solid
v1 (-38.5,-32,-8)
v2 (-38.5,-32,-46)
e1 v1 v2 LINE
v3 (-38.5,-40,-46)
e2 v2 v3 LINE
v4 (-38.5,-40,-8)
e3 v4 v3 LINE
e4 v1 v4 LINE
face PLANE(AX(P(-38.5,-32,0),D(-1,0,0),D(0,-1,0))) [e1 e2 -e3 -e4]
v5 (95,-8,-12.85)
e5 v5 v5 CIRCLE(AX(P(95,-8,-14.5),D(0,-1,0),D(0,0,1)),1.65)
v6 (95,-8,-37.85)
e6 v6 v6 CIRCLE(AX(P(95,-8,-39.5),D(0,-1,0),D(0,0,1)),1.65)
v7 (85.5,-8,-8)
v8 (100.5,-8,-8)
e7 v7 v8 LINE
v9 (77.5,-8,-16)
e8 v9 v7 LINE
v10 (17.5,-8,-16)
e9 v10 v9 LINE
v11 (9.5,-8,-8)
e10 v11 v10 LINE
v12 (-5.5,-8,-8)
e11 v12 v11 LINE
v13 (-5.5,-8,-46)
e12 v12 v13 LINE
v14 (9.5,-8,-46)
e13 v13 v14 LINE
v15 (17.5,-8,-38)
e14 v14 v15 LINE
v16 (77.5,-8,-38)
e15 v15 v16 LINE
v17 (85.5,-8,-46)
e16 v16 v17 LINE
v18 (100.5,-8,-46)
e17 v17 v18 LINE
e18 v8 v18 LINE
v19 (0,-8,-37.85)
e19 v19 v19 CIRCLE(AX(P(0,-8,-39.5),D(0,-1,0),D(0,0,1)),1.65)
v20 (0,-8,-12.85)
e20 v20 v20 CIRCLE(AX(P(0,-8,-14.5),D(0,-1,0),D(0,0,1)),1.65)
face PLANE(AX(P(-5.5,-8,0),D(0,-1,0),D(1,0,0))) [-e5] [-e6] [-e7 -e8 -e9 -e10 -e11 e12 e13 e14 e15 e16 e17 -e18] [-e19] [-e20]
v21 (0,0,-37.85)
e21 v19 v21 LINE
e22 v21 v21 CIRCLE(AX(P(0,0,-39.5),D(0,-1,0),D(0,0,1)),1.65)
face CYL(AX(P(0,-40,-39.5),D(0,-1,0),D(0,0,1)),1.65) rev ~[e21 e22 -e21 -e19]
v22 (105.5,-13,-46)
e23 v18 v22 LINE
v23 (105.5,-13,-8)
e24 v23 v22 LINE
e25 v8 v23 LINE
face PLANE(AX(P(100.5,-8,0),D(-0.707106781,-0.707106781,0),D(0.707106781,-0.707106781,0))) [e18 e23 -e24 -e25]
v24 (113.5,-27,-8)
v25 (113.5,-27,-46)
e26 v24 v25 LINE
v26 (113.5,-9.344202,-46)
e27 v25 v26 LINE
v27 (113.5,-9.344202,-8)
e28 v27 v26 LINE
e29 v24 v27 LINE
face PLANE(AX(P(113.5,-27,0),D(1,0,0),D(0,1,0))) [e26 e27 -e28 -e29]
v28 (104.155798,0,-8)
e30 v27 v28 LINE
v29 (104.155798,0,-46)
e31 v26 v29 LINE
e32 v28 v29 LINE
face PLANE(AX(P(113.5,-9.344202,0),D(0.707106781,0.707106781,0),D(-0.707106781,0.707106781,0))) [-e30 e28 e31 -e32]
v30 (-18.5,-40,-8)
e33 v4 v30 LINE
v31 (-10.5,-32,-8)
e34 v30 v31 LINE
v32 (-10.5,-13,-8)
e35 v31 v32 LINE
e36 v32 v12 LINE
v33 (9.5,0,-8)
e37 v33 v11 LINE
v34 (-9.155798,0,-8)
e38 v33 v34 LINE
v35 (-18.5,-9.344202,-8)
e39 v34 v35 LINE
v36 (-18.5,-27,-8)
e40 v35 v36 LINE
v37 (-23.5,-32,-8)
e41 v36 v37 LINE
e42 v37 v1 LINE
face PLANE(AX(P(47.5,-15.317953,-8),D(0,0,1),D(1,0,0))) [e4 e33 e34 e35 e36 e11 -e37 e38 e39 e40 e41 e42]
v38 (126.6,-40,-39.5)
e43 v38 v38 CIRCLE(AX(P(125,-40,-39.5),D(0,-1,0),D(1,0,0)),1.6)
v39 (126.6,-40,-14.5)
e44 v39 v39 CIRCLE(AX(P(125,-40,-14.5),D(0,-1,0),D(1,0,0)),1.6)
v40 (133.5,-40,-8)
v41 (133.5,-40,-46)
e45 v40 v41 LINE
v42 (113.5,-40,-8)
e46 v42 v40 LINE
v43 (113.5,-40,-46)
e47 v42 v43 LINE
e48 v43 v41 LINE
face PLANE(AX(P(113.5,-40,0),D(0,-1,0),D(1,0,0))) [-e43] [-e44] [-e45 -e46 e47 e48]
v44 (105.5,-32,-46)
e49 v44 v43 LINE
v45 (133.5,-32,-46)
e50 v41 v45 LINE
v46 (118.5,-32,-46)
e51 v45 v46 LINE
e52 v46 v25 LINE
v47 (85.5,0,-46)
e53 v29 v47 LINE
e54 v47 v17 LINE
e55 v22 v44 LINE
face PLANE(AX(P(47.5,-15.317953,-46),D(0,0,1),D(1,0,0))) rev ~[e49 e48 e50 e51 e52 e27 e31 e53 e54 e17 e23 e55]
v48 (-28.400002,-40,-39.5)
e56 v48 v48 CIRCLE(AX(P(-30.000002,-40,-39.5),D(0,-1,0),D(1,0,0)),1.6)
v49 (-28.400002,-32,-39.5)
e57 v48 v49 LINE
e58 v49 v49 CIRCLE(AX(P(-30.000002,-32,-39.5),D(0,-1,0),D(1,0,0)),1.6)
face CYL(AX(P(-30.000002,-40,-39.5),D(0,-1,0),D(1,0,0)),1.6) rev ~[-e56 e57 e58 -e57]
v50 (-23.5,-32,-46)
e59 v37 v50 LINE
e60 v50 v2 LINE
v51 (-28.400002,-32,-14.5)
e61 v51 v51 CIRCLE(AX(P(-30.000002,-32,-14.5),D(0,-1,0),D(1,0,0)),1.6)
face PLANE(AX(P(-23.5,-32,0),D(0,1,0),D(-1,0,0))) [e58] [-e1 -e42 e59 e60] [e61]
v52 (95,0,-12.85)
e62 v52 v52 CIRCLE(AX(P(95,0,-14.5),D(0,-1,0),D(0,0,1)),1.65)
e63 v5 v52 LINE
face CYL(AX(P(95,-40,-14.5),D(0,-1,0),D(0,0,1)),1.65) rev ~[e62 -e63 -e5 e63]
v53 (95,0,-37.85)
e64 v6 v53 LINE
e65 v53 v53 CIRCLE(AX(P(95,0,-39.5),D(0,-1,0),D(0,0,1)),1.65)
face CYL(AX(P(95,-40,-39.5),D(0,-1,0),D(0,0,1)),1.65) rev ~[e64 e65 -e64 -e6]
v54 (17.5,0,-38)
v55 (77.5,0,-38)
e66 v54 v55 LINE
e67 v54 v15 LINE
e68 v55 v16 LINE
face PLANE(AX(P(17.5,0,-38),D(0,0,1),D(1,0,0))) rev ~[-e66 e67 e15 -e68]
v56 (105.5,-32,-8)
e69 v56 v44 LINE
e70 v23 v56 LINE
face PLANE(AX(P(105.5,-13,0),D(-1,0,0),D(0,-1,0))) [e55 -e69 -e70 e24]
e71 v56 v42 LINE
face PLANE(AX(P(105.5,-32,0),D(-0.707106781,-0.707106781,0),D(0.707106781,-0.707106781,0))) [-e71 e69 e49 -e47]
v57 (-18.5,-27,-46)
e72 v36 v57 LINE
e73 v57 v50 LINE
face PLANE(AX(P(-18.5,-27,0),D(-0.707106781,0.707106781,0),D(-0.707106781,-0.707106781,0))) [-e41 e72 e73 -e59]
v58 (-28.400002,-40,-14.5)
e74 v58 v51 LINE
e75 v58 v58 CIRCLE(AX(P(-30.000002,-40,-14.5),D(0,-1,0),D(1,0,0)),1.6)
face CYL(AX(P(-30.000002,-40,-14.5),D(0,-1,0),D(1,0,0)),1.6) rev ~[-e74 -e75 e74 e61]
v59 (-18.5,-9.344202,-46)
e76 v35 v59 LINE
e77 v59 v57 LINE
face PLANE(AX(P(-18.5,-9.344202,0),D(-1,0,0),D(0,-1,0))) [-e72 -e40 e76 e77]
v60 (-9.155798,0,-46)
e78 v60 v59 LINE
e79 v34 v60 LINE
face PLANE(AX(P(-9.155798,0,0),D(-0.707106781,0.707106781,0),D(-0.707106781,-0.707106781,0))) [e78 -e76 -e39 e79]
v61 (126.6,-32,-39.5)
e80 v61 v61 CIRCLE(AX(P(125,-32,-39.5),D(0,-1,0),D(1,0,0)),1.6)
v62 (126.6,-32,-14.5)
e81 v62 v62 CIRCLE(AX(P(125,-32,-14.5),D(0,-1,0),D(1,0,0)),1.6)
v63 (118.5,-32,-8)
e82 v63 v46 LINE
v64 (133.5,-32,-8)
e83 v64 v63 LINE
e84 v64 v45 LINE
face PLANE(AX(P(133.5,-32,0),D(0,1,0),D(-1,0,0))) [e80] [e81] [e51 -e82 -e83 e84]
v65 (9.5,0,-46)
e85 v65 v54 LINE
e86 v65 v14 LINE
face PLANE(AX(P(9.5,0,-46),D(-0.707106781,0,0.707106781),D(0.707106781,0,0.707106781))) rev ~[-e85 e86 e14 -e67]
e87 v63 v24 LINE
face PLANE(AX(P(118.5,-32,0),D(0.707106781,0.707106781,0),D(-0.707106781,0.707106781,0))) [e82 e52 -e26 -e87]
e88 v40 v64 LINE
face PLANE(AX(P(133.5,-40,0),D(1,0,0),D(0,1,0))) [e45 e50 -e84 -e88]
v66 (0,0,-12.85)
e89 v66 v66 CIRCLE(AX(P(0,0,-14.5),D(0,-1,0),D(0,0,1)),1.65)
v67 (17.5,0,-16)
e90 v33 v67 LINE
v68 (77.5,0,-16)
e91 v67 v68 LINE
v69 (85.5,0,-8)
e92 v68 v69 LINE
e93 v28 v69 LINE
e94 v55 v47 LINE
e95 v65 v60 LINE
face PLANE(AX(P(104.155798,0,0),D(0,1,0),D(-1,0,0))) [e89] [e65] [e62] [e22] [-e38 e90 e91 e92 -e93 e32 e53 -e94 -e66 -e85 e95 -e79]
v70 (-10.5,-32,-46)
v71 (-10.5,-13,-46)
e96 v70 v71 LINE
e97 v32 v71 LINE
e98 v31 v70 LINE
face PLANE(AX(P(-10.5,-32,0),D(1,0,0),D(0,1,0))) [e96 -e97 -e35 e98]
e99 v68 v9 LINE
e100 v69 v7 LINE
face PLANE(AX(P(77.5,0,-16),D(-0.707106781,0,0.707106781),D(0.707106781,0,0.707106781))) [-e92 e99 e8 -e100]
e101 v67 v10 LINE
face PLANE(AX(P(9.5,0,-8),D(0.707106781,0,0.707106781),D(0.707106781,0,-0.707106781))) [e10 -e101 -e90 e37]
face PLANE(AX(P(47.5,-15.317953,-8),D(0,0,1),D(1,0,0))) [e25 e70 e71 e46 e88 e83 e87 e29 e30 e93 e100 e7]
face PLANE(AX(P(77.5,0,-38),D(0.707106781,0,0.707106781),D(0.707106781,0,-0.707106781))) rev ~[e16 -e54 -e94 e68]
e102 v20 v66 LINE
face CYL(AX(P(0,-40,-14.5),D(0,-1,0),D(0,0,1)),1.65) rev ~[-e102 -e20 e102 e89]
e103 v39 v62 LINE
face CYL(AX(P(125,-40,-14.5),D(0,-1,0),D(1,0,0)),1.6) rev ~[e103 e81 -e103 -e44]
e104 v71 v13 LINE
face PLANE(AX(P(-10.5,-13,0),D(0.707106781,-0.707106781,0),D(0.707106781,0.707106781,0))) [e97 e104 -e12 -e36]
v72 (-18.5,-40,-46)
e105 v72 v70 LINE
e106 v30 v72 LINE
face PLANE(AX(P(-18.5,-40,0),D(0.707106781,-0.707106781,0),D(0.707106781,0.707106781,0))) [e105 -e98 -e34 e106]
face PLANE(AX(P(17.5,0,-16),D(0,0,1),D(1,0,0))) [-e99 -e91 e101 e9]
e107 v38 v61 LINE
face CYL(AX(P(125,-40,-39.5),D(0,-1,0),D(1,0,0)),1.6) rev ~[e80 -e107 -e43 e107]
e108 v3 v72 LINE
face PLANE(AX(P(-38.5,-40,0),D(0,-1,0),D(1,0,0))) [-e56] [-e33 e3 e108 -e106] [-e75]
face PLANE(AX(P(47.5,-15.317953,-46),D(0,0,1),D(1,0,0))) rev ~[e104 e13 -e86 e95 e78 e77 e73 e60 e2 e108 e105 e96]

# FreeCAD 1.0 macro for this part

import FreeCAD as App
import Part
import Sketcher
Q = App.Units.Quantity


def add_polygon(sketch, points):
    """Adds a closed chain of lines whose ends are joined by coincident constraints."""
    first, n = sketch.GeometryCount, len(points)
    for a, b in zip(points, points[1:] + points[:1]):
        sketch.addGeometry(Part.LineSegment(App.Vector(*a, 0), App.Vector(*b, 0)), False)
    for i in range(n):
        sketch.addConstraint(Sketcher.Constraint("Coincident", first + i, 2, first + (i + 1) % n, 1))

doc = App.newDocument("Part")
body = doc.addObject("PartDesign::Body", "Body")

sketch1 = doc.addObject("Sketcher::SketchObject", "Sketch")
body.addObject(sketch1)
sketch1.AttachmentSupport = (doc.XY_Plane, [""])
sketch1.MapMode = "FlatFace"
add_polygon(sketch1, [(-38.5, -40), (-18.5, -40), (-10.5, -32), (-10.5, -13), (-5.5, -8), (100.5, -8), (105.5, -13), (105.5, -32), (113.5, -40), (133.5, -40), (133.5, -32), (118.5, -32), (113.5, -27), (113.5, -9.344202), (104.155798, 0), (-9.155798, 0), (-18.5, -9.344202), (-18.5, -27), (-23.5, -32), (-38.5, -32)])
sketch1.addConstraint([
    Sketcher.Constraint("Horizontal", 0),
    Sketcher.Constraint("Vertical", 2),
    Sketcher.Constraint("Horizontal", 4),
    Sketcher.Constraint("Vertical", 6),
    Sketcher.Constraint("Horizontal", 8),
    Sketcher.Constraint("Vertical", 9),
    Sketcher.Constraint("Horizontal", 10),
    Sketcher.Constraint("Vertical", 12),
    Sketcher.Constraint("Horizontal", 14),
    Sketcher.Constraint("Vertical", 16),
    Sketcher.Constraint("Horizontal", 18),
    Sketcher.Constraint("Vertical", 19),
    Sketcher.Constraint("PointOnObject", 13, 2, -1),
    Sketcher.Constraint("Parallel", 1, 3),
    Sketcher.Constraint("Perpendicular", 3, 5),
    Sketcher.Constraint("Parallel", 5, 7),
    Sketcher.Constraint("Parallel", 7, 11),
    Sketcher.Constraint("Parallel", 11, 13),
    Sketcher.Constraint("Perpendicular", 13, 15),
    Sketcher.Constraint("Parallel", 15, 17),
    Sketcher.Constraint("Horizontal", 2, 2, 5, 2),
    Sketcher.Constraint("Horizontal", 1, 2, 6, 2),
    Sketcher.Constraint("Horizontal", 0, 2, 7, 2),
    Sketcher.Constraint("Horizontal", 6, 2, 9, 2),
    Sketcher.Constraint("Horizontal", 12, 2, 15, 2),
    Sketcher.Constraint("Horizontal", 11, 2, 16, 2),
    Sketcher.Constraint("Horizontal", 10, 2, 17, 2),
    Sketcher.Constraint("Vertical", 7, 2, 11, 2),
    Sketcher.Constraint("Vertical", 0, 2, 15, 2),
    Sketcher.Constraint("Equal", 0, 8),
    Sketcher.Constraint("Equal", 10, 18),
    Sketcher.Constraint("Equal", 5, 11),
    Sketcher.Constraint("DistanceX", 0, 1, 0, 2, Q("20 mm")),
    Sketcher.Constraint("DistanceX", 4, 1, 4, 2, Q("106 mm")),
    Sketcher.Constraint("DistanceX", 10, 2, 10, 1, Q("15 mm")),
    Sketcher.Constraint("DistanceY", 2, 1, 2, 2, Q("19 mm")),
    Sketcher.Constraint("DistanceY", 9, 1, 9, 2, Q("8 mm")),
    Sketcher.Constraint("DistanceY", 0, 2, -1, 1, Q("40 mm")),
    Sketcher.Constraint("DistanceX", 0, 2, -1, 1, Q("18.5 mm")),
    Sketcher.Constraint("DistanceX", 14, 2, 14, 1, Q("113.311595 mm")),
])
pad1 = doc.addObject("PartDesign::Pad", "Pad")
body.addObject(pad1)
pad1.Profile = sketch1
pad1.Length = 46
pad1.Reversed = True

sketch2 = doc.addObject("Sketcher::SketchObject", "Sketch001")
body.addObject(sketch2)
sketch2.AttachmentSupport = (doc.XZ_Plane, [""])
sketch2.MapMode = "FlatFace"
sketch2.AttachmentOffset = App.Placement(App.Vector(0, 0, 40), App.Rotation())
sketch2.addGeometry([
    Part.Circle(App.Vector(-30.000002, -14.5, 0), App.Vector(0, 0, 1), 1.6),
    Part.Circle(App.Vector(-30.000002, -39.5, 0), App.Vector(0, 0, 1), 1.6),
    Part.Circle(App.Vector(125, -14.5, 0), App.Vector(0, 0, 1), 1.6),
    Part.Circle(App.Vector(125, -39.5, 0), App.Vector(0, 0, 1), 1.6),
    Part.Circle(App.Vector(0, -14.5, 0), App.Vector(0, 0, 1), 1.65),
    Part.Circle(App.Vector(0, -39.5, 0), App.Vector(0, 0, 1), 1.65),
    Part.Circle(App.Vector(95, -14.5, 0), App.Vector(0, 0, 1), 1.65),
    Part.Circle(App.Vector(95, -39.5, 0), App.Vector(0, 0, 1), 1.65),
], False)
sketch2.addConstraint([
    Sketcher.Constraint("Equal", 0, 1),
    Sketcher.Constraint("Equal", 1, 2),
    Sketcher.Constraint("Equal", 2, 3),
    Sketcher.Constraint("Equal", 4, 5),
    Sketcher.Constraint("Equal", 5, 6),
    Sketcher.Constraint("Equal", 6, 7),
    Sketcher.Constraint("PointOnObject", 4, 3, -2),
    Sketcher.Constraint("PointOnObject", 5, 3, -2),
    Sketcher.Constraint("Horizontal", 0, 3, 2, 3),
    Sketcher.Constraint("Horizontal", 1, 3, 3, 3),
    Sketcher.Constraint("Horizontal", 2, 3, 4, 3),
    Sketcher.Constraint("Horizontal", 3, 3, 5, 3),
    Sketcher.Constraint("Horizontal", 4, 3, 6, 3),
    Sketcher.Constraint("Horizontal", 5, 3, 7, 3),
    Sketcher.Constraint("Vertical", 0, 3, 1, 3),
    Sketcher.Constraint("Vertical", 2, 3, 3, 3),
    Sketcher.Constraint("Vertical", 6, 3, 7, 3),
    Sketcher.Constraint("Diameter", 0, Q("3.2 mm")),
    Sketcher.Constraint("Diameter", 4, Q("3.3 mm")),
    Sketcher.Constraint("DistanceX", 0, 3, -1, 1, Q("30.000002 mm")),
    Sketcher.Constraint("DistanceX", -1, 1, 2, 3, Q("125 mm")),
    Sketcher.Constraint("DistanceX", -1, 1, 6, 3, Q("95 mm")),
    Sketcher.Constraint("DistanceY", 1, 3, 0, 3, Q("25 mm")),
    Sketcher.Constraint("DistanceY", 0, 3, -1, 1, Q("14.5 mm")),
])
pocket1 = doc.addObject("PartDesign::Pocket", "Pocket")
body.addObject(pocket1)
pocket1.Profile = sketch2
pocket1.Length = 5000

sketch3 = doc.addObject("Sketcher::SketchObject", "Sketch002")
body.addObject(sketch3)
sketch3.AttachmentSupport = (doc.XY_Plane, [""])
sketch3.MapMode = "FlatFace"
add_polygon(sketch3, [(-38.5, -32), (-38.5, -40), (-18.5, -40), (-10.5, -32), (-10.5, -13), (-5.5, -8), (100.5, -8), (105.5, -13), (105.5, -32), (113.5, -40), (133.5, -40), (133.5, -32), (118.5, -32), (113.5, -27), (113.5, -9.344202), (104.155798, 0), (-9.155798, 0), (-18.5, -9.344202), (-18.5, -27), (-23.5, -32)])
sketch3.addConstraint([
    Sketcher.Constraint("Vertical", 0),
    Sketcher.Constraint("Horizontal", 1),
    Sketcher.Constraint("Vertical", 3),
    Sketcher.Constraint("Horizontal", 5),
    Sketcher.Constraint("Vertical", 7),
    Sketcher.Constraint("Horizontal", 9),
    Sketcher.Constraint("Vertical", 10),
    Sketcher.Constraint("Horizontal", 11),
    Sketcher.Constraint("Vertical", 13),
    Sketcher.Constraint("Horizontal", 15),
    Sketcher.Constraint("Vertical", 17),
    Sketcher.Constraint("Horizontal", 19),
    Sketcher.Constraint("PointOnObject", 14, 2, -1),
    Sketcher.Constraint("Parallel", 2, 4),
    Sketcher.Constraint("Perpendicular", 4, 6),
    Sketcher.Constraint("Parallel", 6, 8),
    Sketcher.Constraint("Parallel", 8, 12),
    Sketcher.Constraint("Parallel", 12, 14),
    Sketcher.Constraint("Perpendicular", 14, 16),
    Sketcher.Constraint("Parallel", 16, 18),
    Sketcher.Constraint("Horizontal", 3, 2, 6, 2),
    Sketcher.Constraint("Horizontal", 2, 2, 7, 2),
    Sketcher.Constraint("Horizontal", 1, 2, 8, 2),
    Sketcher.Constraint("Horizontal", 7, 2, 10, 2),
    Sketcher.Constraint("Horizontal", 13, 2, 16, 2),
    Sketcher.Constraint("Horizontal", 12, 2, 17, 2),
    Sketcher.Constraint("Horizontal", 11, 2, 18, 2),
    Sketcher.Constraint("Vertical", 8, 2, 12, 2),
    Sketcher.Constraint("Vertical", 1, 2, 16, 2),
    Sketcher.Constraint("Equal", 1, 9),
    Sketcher.Constraint("Equal", 11, 19),
    Sketcher.Constraint("Equal", 6, 12),
    Sketcher.Constraint("DistanceX", 1, 1, 1, 2, Q("20 mm")),
    Sketcher.Constraint("DistanceX", 5, 1, 5, 2, Q("106 mm")),
    Sketcher.Constraint("DistanceX", 11, 2, 11, 1, Q("15 mm")),
    Sketcher.Constraint("DistanceY", 0, 2, 0, 1, Q("8 mm")),
    Sketcher.Constraint("DistanceY", 3, 1, 3, 2, Q("19 mm")),
    Sketcher.Constraint("DistanceY", 0, 2, -1, 1, Q("40 mm")),
    Sketcher.Constraint("DistanceX", 0, 2, -1, 1, Q("38.5 mm")),
    Sketcher.Constraint("DistanceX", 15, 2, 15, 1, Q("113.311595 mm")),
])
pocket2 = doc.addObject("PartDesign::Pocket", "Pocket001")
body.addObject(pocket2)
pocket2.Profile = sketch3
pocket2.Length = 8

sketch4 = doc.addObject("Sketcher::SketchObject", "Sketch003")
body.addObject(sketch4)
sketch4.AttachmentSupport = (doc.XZ_Plane, [""])
sketch4.MapMode = "FlatFace"
add_polygon(sketch4, [(9.5, -46), (17.5, -38), (77.5, -38), (85.5, -46)])
add_polygon(sketch4, [(9.5, -8), (85.5, -8), (77.5, -16), (17.5, -16)])
sketch4.addConstraint([
    Sketcher.Constraint("Horizontal", 1),
    Sketcher.Constraint("Horizontal", 3),
    Sketcher.Constraint("Horizontal", 4),
    Sketcher.Constraint("Horizontal", 6),
    Sketcher.Constraint("Perpendicular", 0, 2),
    Sketcher.Constraint("Perpendicular", 2, 5),
    Sketcher.Constraint("Perpendicular", 5, 7),
    Sketcher.Constraint("Vertical", 2, 2, 4, 2),
    Sketcher.Constraint("Vertical", 1, 2, 5, 2),
    Sketcher.Constraint("Vertical", 0, 2, 6, 2),
    Sketcher.Constraint("Vertical", 3, 2, 7, 2),
    Sketcher.Constraint("DistanceX", 1, 1, 1, 2, Q("60 mm")),
    Sketcher.Constraint("DistanceX", 3, 2, 3, 1, Q("76 mm")),
    Sketcher.Constraint("DistanceY", 0, 2, -1, 1, Q("38 mm")),
    Sketcher.Constraint("DistanceY", 4, 2, -1, 1, Q("8 mm")),
    Sketcher.Constraint("DistanceX", -1, 1, 0, 2, Q("17.5 mm")),
])
pocket3 = doc.addObject("PartDesign::Pocket", "Pocket002")
body.addObject(pocket3)
pocket3.Profile = sketch4
pocket3.Length = 8
pocket3.Reversed = True

doc.recompute()
